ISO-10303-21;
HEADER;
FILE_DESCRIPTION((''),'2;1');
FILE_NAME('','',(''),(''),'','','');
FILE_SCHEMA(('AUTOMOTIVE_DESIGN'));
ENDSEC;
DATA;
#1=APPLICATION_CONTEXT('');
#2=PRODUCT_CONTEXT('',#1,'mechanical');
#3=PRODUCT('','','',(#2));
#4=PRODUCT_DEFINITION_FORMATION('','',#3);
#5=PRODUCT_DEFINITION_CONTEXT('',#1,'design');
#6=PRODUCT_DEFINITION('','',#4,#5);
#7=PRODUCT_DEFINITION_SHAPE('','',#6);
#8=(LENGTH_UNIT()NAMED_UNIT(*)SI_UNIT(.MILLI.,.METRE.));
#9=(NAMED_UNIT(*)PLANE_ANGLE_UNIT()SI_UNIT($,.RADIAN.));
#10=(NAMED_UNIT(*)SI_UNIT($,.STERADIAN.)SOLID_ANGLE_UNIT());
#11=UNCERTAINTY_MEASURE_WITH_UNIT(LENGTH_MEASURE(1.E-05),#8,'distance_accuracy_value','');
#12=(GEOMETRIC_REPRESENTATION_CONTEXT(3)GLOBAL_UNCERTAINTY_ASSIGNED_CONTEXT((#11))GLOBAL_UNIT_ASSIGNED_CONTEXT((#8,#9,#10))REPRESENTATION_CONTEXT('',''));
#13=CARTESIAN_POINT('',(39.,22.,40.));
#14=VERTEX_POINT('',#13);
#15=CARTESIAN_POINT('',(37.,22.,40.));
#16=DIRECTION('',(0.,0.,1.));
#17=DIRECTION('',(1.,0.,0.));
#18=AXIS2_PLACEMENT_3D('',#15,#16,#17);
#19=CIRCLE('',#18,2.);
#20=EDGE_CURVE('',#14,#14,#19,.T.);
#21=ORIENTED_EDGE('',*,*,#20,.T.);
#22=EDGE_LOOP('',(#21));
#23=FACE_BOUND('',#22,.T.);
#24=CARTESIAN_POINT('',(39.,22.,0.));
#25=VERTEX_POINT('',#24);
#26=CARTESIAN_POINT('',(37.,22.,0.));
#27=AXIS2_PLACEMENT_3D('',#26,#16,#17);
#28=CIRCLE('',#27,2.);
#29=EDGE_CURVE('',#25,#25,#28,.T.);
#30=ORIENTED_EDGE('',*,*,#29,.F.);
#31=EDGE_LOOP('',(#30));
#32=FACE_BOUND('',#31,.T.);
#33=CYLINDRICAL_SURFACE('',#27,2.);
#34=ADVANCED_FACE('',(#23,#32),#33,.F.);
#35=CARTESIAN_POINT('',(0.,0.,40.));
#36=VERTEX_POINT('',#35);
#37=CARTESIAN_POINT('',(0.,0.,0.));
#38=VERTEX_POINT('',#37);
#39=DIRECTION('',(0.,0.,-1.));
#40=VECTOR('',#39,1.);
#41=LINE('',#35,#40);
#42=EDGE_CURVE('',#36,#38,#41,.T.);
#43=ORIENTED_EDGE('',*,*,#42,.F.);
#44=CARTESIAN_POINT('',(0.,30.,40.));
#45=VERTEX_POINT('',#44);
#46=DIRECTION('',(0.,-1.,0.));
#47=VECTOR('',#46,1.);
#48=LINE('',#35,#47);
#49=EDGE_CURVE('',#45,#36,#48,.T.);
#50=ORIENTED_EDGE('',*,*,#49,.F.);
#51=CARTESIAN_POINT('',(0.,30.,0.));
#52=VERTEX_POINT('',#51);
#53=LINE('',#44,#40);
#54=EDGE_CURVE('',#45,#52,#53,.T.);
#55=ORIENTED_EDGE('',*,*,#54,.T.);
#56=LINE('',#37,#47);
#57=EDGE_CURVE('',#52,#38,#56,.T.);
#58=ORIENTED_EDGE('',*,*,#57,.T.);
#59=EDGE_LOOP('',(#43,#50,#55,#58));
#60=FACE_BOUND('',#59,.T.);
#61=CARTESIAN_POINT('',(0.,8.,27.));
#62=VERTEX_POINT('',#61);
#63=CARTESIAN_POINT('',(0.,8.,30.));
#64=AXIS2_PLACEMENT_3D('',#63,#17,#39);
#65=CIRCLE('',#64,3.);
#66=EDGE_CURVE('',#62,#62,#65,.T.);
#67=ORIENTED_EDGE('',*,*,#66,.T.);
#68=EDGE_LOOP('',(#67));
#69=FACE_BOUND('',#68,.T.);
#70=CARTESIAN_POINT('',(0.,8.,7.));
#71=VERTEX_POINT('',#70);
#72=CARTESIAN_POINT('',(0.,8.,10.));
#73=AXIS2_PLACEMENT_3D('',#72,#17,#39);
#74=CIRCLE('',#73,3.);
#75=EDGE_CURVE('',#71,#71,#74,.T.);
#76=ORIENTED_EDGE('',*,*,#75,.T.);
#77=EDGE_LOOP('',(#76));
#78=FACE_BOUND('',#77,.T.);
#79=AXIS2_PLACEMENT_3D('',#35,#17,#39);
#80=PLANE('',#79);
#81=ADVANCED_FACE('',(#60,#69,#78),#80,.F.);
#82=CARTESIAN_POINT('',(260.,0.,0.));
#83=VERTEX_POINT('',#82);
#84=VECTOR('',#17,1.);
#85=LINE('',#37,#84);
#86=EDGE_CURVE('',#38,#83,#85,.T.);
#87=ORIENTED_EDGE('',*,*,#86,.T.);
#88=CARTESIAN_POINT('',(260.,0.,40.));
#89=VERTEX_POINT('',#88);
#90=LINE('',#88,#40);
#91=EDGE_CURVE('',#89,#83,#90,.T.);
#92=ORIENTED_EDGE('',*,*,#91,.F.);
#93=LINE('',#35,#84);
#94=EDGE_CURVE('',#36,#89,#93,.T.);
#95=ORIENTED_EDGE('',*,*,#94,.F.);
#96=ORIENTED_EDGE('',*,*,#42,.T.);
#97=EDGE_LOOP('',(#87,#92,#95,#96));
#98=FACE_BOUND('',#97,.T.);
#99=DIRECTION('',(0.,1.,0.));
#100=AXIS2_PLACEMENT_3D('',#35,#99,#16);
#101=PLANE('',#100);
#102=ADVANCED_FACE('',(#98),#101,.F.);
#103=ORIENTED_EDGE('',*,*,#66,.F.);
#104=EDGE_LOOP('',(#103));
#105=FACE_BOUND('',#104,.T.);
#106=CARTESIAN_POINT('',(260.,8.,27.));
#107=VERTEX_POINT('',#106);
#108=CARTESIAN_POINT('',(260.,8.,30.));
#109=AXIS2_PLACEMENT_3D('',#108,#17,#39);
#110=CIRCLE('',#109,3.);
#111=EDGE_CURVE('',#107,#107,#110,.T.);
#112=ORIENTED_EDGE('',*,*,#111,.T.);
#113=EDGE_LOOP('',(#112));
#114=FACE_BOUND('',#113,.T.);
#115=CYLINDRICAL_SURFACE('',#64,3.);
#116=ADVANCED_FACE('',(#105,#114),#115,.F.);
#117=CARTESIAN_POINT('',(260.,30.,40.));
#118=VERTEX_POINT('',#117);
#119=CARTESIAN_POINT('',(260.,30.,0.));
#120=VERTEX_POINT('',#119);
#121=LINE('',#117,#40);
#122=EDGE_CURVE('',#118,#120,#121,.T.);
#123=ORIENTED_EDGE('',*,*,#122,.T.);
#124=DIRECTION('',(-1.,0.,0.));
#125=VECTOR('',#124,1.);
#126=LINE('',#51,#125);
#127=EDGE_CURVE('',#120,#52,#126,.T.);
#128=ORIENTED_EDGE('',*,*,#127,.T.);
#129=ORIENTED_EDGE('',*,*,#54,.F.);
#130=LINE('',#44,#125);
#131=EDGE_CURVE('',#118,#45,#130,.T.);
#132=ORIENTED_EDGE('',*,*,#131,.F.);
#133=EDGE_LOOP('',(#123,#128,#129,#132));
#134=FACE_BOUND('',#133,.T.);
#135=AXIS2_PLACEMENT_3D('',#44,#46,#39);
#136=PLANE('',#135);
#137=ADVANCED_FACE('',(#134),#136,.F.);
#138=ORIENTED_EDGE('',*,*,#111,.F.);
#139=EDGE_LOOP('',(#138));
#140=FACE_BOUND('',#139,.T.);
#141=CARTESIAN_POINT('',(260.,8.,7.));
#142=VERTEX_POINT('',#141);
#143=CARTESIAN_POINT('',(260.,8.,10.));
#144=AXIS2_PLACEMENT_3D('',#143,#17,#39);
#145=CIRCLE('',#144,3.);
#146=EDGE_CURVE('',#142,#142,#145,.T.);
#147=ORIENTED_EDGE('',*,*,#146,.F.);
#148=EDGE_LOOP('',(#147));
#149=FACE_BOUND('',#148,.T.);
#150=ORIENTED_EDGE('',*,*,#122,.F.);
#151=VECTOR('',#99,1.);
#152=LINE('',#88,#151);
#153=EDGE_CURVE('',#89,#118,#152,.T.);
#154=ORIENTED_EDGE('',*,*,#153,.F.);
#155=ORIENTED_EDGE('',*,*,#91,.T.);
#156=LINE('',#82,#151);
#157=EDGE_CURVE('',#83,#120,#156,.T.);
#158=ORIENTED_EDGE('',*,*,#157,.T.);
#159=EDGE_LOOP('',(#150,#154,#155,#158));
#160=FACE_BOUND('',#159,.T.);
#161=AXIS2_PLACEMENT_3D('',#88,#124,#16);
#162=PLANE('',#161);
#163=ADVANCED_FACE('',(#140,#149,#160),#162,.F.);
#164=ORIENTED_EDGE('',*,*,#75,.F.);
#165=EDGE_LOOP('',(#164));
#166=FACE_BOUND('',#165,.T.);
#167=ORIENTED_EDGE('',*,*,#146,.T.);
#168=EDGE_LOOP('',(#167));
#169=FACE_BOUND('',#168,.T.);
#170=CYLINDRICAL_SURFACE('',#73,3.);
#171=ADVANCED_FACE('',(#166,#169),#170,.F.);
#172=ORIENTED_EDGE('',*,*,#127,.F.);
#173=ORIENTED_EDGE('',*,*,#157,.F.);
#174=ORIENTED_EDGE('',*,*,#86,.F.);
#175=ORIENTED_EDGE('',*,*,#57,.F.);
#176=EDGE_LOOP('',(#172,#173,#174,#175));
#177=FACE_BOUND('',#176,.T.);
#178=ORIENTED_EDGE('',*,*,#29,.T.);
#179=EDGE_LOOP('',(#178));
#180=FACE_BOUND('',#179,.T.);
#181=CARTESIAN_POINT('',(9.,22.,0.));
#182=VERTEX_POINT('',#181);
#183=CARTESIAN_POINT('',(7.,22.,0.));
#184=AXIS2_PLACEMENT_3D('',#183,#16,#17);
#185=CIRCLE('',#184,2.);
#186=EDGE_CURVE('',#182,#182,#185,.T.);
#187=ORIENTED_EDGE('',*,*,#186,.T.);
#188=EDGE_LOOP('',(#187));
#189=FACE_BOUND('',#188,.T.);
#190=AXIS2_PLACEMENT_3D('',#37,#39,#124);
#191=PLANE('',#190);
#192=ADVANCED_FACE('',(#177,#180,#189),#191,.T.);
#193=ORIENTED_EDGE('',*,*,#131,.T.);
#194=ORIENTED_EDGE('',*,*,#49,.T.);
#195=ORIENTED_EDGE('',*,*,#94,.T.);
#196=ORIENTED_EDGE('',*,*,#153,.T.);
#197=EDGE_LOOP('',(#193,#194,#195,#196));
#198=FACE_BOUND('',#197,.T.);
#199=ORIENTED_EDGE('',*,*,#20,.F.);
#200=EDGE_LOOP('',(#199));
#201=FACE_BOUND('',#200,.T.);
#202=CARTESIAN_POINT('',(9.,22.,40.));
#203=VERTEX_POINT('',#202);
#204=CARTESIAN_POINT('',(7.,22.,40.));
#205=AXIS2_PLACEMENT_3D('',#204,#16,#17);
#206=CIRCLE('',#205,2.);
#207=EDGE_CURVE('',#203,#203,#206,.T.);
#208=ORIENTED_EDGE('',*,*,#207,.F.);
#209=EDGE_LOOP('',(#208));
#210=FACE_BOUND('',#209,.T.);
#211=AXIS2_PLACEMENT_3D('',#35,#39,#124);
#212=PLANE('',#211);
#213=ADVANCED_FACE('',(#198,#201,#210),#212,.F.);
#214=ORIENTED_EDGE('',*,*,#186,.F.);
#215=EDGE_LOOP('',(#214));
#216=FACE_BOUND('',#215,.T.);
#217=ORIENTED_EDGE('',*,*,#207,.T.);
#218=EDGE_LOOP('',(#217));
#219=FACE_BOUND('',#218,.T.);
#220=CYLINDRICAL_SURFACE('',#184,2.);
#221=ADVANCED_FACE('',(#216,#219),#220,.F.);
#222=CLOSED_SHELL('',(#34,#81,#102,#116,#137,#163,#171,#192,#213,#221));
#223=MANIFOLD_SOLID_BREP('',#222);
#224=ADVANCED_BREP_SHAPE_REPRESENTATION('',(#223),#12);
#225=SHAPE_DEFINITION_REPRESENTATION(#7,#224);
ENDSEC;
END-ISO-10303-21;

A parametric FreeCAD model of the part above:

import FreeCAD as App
import Part
import Sketcher
from FreeCAD import Vector
Q = App.Units.Quantity


def add_polygon(sketch, points):
    """Adds a closed chain of lines whose ends are joined by coincident constraints."""
    first, n = sketch.GeometryCount, len(points)
    for a, b in zip(points, points[1:] + points[:1]):
        sketch.addGeometry(Part.LineSegment(App.Vector(*a, 0), App.Vector(*b, 0)), False)
    for i in range(n):
        sketch.addConstraint(Sketcher.Constraint("Coincident", first + i, 2, first + (i + 1) % n, 1))

doc = App.newDocument("Part")
body = doc.addObject("PartDesign::Body", "Body")

# Sketch on XY plane
sketch1 = body.newObject("Sketcher::SketchObject", "Sketch")
sketch1.AttachmentSupport = (doc.getObject("XY_Plane"), [""])
sketch1.MapMode = "FlatFace"
add_polygon(sketch1, [(0, 30), (0, 0), (260, 0), (260, 30)])  # lines 0-3
sketch1.addConstraint(Sketcher.Constraint("Vertical", 0))
sketch1.addConstraint(Sketcher.Constraint("Horizontal", 1))
sketch1.addConstraint(Sketcher.Constraint("Vertical", 2))
sketch1.addConstraint(Sketcher.Constraint("Horizontal", 3))
sketch1.addConstraint(Sketcher.Constraint("Coincident", 0, 2, -1, 1))
sketch1.addConstraint(Sketcher.Constraint("DistanceX", 1, 1, 1, 2, Q("260 mm")))
sketch1.addConstraint(Sketcher.Constraint("DistanceY", 0, 2, 0, 1, Q("30 mm")))
pad1 = body.newObject("PartDesign::Pad", "Pad")
pad1.Profile = sketch1
pad1.Length = 40

# Sketch on XY plane
sketch2 = body.newObject("Sketcher::SketchObject", "Sketch001")
sketch2.AttachmentSupport = (doc.getObject("XY_Plane"), [""])
sketch2.MapMode = "FlatFace"
sketch2.AttachmentOffset = App.Placement(Vector(0, 0, 40), App.Rotation())
sketch2.addGeometry(Part.Circle(Vector(7, 22, 0), Vector(0, 0, 1), 2), False)
sketch2.addGeometry(Part.Circle(Vector(37, 22, 0), Vector(0, 0, 1), 2), False)
sketch2.addConstraint(Sketcher.Constraint("Equal", 0, 1))
sketch2.addConstraint(Sketcher.Constraint("Horizontal", 0, 3, 1, 3))
sketch2.addConstraint(Sketcher.Constraint("Diameter", 0, Q("4 mm")))
sketch2.addConstraint(Sketcher.Constraint("DistanceX", -1, 1, 0, 3, Q("7 mm")))
sketch2.addConstraint(Sketcher.Constraint("DistanceY", -1, 1, 0, 3, Q("22 mm")))
sketch2.addConstraint(Sketcher.Constraint("DistanceX", -1, 1, 1, 3, Q("37 mm")))
pocket1 = body.newObject("PartDesign::Pocket", "Pocket")
pocket1.Profile = sketch2
pocket1.Type = "ThroughAll"

# Sketch on YZ plane
sketch3 = body.newObject("Sketcher::SketchObject", "Sketch002")
sketch3.AttachmentSupport = (doc.getObject("YZ_Plane"), [""])
sketch3.MapMode = "FlatFace"
sketch3.AttachmentOffset = App.Placement(Vector(0, 0, 260), App.Rotation())
sketch3.addGeometry(Part.Circle(Vector(8, 10, 0), Vector(0, 0, 1), 3), False)
sketch3.addGeometry(Part.Circle(Vector(8, 30, 0), Vector(0, 0, 1), 3), False)
sketch3.addConstraint(Sketcher.Constraint("Equal", 0, 1))
sketch3.addConstraint(Sketcher.Constraint("Vertical", 0, 3, 1, 3))
sketch3.addConstraint(Sketcher.Constraint("Diameter", 0, Q("6 mm")))
sketch3.addConstraint(Sketcher.Constraint("DistanceX", -1, 1, 0, 3, Q("8 mm")))
sketch3.addConstraint(Sketcher.Constraint("DistanceY", -1, 1, 0, 3, Q("10 mm")))
sketch3.addConstraint(Sketcher.Constraint("DistanceY", -1, 1, 1, 3, Q("30 mm")))
pocket2 = body.newObject("PartDesign::Pocket", "Pocket001")
pocket2.Profile = sketch3
pocket2.Type = "ThroughAll"

doc.recompute()
